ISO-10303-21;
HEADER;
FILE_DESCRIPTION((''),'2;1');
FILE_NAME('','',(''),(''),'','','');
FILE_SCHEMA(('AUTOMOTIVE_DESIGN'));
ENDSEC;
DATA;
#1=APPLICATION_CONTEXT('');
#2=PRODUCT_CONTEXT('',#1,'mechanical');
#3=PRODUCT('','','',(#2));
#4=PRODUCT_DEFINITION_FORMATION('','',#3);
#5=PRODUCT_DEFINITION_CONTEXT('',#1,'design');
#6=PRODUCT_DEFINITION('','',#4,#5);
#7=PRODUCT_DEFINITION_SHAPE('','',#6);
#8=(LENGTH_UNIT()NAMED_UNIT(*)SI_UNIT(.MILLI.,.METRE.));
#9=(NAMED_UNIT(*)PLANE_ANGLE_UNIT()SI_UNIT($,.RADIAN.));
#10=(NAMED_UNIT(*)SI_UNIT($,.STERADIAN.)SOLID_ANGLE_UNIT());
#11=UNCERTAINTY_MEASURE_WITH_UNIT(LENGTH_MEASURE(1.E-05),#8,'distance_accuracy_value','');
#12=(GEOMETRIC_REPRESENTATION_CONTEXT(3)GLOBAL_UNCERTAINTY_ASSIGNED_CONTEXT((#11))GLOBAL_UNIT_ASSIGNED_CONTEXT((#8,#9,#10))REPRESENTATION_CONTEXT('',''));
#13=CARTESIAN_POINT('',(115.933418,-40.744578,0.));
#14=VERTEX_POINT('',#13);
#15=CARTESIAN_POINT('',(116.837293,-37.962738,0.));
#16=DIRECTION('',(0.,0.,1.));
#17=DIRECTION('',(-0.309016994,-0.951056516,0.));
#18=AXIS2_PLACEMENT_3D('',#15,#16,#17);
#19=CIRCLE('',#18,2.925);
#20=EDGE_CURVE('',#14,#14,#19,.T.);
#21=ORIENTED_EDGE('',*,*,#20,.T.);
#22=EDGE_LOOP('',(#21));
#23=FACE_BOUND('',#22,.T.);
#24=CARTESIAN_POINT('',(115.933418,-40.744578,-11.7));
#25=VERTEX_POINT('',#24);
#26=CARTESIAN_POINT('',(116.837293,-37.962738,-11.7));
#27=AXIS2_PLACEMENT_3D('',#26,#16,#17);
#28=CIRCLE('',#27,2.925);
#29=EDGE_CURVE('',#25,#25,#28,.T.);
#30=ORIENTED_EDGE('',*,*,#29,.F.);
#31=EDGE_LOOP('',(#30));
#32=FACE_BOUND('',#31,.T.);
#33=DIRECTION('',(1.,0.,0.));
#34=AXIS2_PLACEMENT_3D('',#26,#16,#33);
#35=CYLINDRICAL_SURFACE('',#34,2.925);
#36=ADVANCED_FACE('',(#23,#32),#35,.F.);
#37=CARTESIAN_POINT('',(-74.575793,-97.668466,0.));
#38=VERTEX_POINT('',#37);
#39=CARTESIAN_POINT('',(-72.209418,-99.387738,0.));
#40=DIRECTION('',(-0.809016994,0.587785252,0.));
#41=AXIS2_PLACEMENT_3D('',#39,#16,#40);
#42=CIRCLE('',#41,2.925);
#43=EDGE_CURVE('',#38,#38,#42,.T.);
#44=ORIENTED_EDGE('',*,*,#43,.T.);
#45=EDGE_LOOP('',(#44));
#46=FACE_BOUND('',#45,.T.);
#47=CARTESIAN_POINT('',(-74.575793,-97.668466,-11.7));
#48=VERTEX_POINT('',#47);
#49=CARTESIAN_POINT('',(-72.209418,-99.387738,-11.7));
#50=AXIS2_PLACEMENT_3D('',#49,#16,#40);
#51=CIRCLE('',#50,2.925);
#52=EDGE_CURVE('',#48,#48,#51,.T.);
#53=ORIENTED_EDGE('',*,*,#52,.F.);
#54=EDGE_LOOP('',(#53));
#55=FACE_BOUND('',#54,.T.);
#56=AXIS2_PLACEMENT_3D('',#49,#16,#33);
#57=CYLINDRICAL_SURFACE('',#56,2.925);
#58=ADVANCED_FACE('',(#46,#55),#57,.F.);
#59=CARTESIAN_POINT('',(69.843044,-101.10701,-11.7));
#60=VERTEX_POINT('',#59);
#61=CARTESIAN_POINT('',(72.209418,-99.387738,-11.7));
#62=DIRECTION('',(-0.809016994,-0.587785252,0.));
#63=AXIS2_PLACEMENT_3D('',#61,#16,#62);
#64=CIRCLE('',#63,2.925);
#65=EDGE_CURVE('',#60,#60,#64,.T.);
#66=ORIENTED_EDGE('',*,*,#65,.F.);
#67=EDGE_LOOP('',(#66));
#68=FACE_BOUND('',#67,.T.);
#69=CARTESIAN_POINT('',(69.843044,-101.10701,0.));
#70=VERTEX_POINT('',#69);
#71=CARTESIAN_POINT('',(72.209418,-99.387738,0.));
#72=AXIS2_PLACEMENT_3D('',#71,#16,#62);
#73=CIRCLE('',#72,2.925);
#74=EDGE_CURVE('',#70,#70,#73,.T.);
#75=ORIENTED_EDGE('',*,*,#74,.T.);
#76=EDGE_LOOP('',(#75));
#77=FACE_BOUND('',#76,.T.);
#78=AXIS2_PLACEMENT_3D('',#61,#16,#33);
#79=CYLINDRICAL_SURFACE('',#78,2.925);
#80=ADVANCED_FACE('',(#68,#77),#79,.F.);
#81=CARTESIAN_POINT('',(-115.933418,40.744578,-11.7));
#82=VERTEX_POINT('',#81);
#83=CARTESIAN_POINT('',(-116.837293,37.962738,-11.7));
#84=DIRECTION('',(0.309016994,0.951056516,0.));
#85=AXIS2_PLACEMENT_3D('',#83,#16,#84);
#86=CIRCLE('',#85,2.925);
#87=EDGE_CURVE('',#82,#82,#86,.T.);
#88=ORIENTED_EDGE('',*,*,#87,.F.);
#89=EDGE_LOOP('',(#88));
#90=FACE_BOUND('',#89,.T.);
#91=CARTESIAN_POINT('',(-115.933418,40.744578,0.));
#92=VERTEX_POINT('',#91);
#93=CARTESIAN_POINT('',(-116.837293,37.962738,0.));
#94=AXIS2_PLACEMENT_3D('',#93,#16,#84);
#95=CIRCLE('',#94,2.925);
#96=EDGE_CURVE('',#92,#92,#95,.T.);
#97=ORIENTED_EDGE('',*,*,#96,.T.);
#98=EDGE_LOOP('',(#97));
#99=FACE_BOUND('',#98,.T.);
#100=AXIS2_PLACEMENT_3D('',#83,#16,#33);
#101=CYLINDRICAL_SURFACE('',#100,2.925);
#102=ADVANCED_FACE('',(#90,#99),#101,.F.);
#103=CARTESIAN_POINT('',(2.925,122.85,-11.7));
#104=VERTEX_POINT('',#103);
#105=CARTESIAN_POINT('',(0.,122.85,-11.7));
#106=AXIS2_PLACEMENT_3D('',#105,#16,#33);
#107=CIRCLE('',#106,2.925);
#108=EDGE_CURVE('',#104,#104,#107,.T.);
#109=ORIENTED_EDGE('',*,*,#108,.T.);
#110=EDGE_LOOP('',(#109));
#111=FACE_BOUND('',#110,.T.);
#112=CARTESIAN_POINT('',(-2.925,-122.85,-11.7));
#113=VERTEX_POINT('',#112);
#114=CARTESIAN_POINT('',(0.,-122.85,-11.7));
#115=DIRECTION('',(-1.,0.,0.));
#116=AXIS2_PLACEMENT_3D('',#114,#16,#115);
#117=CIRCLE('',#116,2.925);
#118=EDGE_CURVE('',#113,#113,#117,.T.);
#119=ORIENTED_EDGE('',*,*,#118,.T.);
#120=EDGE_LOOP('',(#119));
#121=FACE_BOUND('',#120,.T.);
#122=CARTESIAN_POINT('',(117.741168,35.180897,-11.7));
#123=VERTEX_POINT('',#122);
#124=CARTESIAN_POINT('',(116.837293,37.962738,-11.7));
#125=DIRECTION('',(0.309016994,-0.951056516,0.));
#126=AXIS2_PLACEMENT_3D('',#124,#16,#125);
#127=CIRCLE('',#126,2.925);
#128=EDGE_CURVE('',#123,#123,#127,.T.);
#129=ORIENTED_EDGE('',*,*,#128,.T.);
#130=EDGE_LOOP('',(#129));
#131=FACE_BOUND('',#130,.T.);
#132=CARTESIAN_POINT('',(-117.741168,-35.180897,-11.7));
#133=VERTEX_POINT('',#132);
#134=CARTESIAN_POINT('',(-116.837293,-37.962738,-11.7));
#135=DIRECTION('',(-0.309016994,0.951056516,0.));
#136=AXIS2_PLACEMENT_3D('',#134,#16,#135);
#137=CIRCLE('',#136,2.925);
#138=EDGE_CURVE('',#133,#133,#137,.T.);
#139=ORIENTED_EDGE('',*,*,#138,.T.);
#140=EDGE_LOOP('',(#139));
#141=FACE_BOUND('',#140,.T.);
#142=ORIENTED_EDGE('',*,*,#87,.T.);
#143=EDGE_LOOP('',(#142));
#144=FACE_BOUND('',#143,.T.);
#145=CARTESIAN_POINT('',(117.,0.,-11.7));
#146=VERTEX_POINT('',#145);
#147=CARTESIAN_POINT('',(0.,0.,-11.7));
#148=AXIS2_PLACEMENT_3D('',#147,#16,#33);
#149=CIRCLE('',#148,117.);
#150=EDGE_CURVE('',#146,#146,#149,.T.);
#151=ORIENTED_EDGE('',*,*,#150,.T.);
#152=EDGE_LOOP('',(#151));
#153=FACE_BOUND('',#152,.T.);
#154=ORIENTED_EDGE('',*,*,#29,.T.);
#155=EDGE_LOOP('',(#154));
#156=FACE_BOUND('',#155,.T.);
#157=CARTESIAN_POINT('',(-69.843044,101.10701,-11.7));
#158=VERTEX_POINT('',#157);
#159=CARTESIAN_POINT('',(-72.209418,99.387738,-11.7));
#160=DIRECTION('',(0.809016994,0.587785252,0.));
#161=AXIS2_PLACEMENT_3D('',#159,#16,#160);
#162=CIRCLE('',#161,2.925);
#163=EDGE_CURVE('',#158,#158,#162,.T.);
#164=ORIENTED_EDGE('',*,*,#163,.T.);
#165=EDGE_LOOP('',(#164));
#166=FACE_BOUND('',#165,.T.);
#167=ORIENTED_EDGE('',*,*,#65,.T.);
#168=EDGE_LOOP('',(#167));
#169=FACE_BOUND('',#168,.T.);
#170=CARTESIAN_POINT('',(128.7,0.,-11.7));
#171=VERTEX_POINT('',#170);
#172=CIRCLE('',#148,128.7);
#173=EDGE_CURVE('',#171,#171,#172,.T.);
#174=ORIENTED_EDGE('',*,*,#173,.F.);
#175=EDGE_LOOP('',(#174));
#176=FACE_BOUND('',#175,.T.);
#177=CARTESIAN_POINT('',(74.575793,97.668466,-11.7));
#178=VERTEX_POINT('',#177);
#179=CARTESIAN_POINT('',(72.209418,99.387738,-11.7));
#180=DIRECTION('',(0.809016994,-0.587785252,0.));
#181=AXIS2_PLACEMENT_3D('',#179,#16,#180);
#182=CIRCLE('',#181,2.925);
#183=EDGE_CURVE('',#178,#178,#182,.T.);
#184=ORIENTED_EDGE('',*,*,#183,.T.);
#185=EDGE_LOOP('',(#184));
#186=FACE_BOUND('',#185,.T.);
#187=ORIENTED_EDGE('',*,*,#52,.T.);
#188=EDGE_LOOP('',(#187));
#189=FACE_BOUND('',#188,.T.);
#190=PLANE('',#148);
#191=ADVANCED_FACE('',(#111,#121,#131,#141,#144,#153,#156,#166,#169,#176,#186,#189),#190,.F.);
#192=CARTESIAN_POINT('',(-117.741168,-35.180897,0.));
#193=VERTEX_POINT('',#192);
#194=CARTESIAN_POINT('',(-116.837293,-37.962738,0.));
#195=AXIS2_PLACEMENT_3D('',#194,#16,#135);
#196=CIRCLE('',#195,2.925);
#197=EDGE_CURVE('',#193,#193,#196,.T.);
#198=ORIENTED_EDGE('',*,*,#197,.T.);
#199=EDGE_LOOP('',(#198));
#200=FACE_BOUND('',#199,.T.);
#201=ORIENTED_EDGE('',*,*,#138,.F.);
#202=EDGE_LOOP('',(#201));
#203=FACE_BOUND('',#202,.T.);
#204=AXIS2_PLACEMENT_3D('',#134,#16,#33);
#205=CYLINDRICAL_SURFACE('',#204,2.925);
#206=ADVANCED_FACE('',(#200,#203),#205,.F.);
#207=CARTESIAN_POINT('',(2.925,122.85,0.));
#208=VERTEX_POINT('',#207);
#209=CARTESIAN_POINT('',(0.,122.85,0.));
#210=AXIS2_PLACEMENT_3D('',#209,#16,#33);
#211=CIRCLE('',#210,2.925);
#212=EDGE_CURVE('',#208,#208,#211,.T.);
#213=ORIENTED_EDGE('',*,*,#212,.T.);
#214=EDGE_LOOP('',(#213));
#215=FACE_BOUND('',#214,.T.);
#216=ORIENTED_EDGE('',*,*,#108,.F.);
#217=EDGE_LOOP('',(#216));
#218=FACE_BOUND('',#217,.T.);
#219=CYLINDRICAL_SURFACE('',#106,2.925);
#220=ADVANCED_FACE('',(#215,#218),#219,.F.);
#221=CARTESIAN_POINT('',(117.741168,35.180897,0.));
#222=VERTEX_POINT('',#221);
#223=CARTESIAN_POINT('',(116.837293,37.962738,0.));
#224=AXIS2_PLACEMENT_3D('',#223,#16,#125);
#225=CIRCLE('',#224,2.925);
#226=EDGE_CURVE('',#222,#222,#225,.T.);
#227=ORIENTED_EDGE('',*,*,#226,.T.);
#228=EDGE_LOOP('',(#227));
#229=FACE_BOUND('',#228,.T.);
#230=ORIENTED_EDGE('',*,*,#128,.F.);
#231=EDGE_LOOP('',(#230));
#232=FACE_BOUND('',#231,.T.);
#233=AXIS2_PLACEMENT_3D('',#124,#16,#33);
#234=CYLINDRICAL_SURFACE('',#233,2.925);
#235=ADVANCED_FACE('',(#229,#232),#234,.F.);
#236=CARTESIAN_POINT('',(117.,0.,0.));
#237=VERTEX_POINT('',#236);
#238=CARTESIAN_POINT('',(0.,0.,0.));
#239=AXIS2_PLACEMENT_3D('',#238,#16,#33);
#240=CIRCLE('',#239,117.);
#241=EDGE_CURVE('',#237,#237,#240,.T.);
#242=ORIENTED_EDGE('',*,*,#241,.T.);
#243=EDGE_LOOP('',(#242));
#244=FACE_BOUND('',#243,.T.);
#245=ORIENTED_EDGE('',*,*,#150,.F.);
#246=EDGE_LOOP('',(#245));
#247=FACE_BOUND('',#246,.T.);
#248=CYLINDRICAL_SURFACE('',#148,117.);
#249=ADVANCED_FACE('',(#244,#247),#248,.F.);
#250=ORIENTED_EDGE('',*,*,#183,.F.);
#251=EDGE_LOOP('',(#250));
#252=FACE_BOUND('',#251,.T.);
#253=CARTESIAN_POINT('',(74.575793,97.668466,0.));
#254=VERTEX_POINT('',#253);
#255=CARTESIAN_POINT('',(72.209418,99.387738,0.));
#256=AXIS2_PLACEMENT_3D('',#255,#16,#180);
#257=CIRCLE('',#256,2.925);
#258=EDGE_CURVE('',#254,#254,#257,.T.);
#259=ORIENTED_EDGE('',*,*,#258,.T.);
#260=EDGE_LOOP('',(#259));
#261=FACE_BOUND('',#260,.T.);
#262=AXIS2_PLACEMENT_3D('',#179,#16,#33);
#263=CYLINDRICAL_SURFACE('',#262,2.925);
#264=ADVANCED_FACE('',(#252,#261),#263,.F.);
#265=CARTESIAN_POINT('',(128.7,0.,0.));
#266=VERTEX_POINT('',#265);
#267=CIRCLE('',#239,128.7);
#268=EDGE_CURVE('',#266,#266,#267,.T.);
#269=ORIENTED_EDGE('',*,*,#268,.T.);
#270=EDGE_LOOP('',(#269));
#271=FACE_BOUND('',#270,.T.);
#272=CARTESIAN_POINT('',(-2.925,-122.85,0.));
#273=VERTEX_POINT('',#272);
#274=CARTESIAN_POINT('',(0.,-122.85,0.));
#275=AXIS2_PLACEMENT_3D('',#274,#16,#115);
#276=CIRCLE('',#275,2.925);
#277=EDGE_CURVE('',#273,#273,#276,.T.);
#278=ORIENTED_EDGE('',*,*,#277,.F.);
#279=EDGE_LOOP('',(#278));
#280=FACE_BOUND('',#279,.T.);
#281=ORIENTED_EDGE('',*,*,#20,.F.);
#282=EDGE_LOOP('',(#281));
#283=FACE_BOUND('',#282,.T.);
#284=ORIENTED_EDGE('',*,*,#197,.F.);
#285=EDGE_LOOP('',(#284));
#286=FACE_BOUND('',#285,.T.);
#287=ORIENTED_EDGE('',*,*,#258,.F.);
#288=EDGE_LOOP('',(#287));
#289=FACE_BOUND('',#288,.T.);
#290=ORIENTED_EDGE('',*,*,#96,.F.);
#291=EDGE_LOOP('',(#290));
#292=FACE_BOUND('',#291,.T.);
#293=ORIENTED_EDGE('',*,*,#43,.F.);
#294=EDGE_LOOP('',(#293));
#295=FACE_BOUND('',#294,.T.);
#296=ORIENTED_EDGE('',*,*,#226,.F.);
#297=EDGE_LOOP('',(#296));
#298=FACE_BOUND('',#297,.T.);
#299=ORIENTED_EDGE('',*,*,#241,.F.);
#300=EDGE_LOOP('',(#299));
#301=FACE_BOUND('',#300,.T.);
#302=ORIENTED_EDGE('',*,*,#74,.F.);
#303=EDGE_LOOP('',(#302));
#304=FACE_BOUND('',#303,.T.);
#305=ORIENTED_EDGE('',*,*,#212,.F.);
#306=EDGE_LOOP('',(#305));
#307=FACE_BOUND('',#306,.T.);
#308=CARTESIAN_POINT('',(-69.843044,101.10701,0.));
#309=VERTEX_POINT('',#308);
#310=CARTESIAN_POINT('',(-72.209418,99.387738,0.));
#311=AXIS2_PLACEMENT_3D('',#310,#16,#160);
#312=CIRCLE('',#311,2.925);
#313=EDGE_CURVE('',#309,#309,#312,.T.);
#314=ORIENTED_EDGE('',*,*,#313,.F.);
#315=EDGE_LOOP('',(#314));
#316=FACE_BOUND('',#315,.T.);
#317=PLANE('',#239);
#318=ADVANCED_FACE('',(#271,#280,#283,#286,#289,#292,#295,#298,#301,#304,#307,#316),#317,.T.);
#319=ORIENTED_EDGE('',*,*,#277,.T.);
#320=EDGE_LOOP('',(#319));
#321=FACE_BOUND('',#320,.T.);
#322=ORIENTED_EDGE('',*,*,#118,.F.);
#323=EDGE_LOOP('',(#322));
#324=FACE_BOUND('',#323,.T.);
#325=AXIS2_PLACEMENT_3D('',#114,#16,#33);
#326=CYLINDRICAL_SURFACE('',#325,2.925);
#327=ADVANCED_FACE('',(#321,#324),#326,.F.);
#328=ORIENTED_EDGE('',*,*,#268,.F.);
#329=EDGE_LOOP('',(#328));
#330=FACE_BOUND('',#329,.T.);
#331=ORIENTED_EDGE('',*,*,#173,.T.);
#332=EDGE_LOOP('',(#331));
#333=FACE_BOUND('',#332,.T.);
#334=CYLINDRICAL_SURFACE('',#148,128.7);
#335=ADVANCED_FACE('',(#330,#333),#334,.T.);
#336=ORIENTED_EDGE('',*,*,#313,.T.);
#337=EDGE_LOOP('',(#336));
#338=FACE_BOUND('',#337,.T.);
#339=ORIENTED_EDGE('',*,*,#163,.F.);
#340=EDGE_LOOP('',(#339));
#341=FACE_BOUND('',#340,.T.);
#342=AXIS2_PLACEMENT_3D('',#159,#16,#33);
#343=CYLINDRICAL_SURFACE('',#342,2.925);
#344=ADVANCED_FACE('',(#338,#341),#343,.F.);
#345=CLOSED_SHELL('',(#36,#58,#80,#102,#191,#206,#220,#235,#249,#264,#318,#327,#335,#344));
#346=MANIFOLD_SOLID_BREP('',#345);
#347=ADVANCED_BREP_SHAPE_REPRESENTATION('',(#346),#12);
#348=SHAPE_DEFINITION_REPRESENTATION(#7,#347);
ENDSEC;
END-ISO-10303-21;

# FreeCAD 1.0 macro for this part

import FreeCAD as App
import Part
import Sketcher
from FreeCAD import Vector

doc = App.newDocument("Part")
body = doc.addObject("PartDesign::Body", "Body")

sketch1 = body.newObject("Sketcher::SketchObject", "Sketch")
sketch1.AttachmentSupport = (doc.getObject("XY_Plane"), [""])
sketch1.MapMode = "FlatFace"
sketch1.addGeometry([
    Part.Circle(Vector(0, 0, 0), Vector(0, 0, 1), 129),
    Part.Circle(Vector(0, 0, 0), Vector(0, 0, 1), 117),
], False)
sketch1.addConstraint([
    Sketcher.Constraint("Coincident", 0, 3, -1, 1),
    Sketcher.Constraint("Coincident", 1, 3, -1, 1),
    Sketcher.Constraint("Diameter", 1, 234.0),
    Sketcher.Constraint("Diameter", 0, 257.4),
])
pad1 = body.newObject("PartDesign::Pad", "Pad")
pad1.Profile = sketch1
pad1.Length = 11.7
pad1.Reversed = True

sketch2 = body.newObject("Sketcher::SketchObject", "Sketch001")
sketch2.AttachmentSupport = (doc.getObject("XY_Plane"), [""])
sketch2.MapMode = "FlatFace"
sketch2.addGeometry(Part.Circle(Vector(0, 122.8, 0), Vector(0, 0, 1), 2.9), False)
sketch2.addConstraint([
    Sketcher.Constraint("PointOnObject", 0, 3, -2),
    Sketcher.Constraint("Diameter", 0, 5.85),
    Sketcher.Constraint("DistanceY", -1, 1, 0, 3, 122.85),
])
pocket1 = body.newObject("PartDesign::Pocket", "Pocket")
pocket1.Profile = sketch2
pocket1.Type = "ThroughAll"
doc.recompute()

polarpattern = body.newObject("PartDesign::PolarPattern", "PolarPattern")
polarpattern.Originals = [pocket1]
polarpattern.Axis = (doc.getObject("Z_Axis"), [""])
polarpattern.Angle = 360
polarpattern.Occurrences = 10
body.Tip = polarpattern

doc.recompute()
